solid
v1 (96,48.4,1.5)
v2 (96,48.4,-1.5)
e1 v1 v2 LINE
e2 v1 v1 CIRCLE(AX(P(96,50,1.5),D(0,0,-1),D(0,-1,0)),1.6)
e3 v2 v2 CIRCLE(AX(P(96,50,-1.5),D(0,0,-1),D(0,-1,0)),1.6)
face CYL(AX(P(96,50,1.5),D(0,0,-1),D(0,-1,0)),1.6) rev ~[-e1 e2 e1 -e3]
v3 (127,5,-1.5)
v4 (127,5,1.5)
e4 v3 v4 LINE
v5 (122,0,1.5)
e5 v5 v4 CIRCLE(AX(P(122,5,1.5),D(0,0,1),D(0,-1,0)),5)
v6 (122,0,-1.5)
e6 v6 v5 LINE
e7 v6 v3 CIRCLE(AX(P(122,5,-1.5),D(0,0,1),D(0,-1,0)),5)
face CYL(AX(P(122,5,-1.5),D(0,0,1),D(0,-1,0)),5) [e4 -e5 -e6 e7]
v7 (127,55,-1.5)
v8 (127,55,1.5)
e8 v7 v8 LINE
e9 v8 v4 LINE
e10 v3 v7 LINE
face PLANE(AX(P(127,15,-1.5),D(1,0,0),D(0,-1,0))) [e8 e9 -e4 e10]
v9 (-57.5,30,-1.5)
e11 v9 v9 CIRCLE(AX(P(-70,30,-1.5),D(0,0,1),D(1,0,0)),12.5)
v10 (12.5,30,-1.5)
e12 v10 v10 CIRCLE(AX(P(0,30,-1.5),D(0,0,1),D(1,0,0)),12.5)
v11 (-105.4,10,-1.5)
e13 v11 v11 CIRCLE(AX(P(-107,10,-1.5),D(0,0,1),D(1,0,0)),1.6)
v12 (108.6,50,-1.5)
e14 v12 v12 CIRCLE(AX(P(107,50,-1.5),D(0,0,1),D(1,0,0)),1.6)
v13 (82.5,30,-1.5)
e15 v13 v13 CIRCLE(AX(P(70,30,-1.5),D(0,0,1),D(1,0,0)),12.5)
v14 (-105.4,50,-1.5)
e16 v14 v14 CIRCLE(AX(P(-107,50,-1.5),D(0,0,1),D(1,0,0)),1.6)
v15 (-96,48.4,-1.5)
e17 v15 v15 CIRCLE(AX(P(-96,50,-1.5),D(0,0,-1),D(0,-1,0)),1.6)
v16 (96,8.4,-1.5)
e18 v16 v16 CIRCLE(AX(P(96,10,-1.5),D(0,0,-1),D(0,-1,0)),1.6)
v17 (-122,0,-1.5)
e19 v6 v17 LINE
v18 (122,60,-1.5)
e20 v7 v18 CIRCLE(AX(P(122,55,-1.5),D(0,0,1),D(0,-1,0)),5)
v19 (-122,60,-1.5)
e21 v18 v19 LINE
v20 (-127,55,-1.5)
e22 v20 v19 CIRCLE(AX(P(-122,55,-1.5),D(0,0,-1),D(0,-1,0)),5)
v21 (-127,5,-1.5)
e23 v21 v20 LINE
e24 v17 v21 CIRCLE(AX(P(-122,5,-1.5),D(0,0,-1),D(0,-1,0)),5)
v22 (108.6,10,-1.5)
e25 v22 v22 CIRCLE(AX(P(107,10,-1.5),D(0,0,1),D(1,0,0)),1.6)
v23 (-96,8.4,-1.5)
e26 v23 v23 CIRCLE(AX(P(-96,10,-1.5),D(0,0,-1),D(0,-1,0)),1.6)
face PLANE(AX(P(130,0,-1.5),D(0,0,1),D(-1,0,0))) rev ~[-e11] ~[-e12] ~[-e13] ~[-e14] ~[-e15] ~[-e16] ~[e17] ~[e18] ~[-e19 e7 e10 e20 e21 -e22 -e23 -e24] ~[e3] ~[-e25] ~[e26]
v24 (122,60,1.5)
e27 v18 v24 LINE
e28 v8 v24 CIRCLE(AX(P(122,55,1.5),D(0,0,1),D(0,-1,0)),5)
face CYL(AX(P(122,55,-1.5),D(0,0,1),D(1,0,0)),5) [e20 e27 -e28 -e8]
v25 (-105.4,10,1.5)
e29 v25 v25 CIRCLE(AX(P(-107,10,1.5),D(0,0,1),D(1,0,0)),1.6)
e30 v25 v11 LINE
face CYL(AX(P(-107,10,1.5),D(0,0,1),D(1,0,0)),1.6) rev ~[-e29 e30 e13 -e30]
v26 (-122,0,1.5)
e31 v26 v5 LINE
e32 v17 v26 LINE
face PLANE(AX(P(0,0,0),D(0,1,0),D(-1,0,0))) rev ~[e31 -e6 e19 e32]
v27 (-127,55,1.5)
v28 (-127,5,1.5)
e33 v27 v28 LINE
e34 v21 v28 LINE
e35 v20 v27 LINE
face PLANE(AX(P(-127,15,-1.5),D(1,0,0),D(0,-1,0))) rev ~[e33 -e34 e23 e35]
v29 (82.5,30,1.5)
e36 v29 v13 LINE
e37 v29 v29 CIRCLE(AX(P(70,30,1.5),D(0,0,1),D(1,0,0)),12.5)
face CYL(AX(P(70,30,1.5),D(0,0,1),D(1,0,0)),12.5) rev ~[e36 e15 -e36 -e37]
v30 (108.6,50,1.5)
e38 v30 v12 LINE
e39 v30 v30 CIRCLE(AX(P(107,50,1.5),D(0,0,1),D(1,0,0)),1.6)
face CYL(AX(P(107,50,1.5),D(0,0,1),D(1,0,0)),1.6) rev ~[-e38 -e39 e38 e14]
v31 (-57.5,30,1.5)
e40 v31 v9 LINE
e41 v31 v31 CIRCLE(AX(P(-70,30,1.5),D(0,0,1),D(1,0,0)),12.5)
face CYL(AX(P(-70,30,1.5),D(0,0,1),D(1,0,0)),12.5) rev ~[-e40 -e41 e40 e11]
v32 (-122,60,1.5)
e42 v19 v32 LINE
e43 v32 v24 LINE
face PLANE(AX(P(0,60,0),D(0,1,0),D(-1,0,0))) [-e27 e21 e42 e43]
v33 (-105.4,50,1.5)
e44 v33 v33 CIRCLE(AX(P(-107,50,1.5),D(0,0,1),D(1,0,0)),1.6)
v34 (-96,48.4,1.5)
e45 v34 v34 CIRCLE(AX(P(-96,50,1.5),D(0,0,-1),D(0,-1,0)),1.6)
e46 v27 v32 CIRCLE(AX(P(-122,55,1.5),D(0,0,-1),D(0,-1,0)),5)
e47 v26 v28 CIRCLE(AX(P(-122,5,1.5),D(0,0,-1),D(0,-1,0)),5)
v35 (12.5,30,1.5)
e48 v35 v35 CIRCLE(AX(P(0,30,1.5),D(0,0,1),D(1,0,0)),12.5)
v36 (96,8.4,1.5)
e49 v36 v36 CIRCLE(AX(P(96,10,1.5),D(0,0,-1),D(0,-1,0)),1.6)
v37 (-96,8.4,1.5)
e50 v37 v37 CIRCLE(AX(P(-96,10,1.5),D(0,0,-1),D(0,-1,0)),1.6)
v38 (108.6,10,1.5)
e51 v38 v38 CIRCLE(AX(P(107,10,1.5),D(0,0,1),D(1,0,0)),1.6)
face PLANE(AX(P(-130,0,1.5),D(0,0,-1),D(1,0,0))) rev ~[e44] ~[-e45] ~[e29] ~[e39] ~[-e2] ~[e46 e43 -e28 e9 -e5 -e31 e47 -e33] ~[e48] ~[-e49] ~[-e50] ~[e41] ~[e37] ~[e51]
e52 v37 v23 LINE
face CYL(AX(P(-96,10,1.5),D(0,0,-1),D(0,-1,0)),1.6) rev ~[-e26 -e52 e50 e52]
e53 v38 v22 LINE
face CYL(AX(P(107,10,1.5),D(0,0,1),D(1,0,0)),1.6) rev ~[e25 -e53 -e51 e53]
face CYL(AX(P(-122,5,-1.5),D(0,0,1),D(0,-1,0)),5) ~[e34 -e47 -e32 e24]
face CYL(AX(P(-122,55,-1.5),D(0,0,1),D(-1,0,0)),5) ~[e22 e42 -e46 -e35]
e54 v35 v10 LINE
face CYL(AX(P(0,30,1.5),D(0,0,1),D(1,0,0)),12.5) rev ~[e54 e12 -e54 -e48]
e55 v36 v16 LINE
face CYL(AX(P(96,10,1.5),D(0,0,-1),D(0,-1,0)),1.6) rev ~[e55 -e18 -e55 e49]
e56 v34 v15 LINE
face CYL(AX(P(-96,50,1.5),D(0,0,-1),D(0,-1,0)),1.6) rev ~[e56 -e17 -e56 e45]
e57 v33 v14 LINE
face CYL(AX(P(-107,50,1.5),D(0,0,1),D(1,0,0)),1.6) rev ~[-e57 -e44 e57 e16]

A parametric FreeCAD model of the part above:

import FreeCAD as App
import Part
import Sketcher
Q = App.Units.Quantity


def edges_at(feature, points):
    """Names of the edges that pass closest to the given points."""
    edges = feature.Shape.Edges
    near = lambda p: min(range(len(edges)), key=lambda i: edges[i].distToShape(Part.Vertex(*p))[0])
    return sorted({f"Edge{near(p) + 1}" for p in points})


def add_polygon(sketch, points):
    """Adds a closed chain of lines whose ends are joined by coincident constraints."""
    first, n = sketch.GeometryCount, len(points)
    for a, b in zip(points, points[1:] + points[:1]):
        sketch.addGeometry(Part.LineSegment(App.Vector(*a, 0), App.Vector(*b, 0)), False)
    for i in range(n):
        sketch.addConstraint(Sketcher.Constraint("Coincident", first + i, 2, first + (i + 1) % n, 1))

doc = App.newDocument("Part")
body = doc.addObject("PartDesign::Body", "Body")

sketch1 = body.newObject("Sketcher::SketchObject", "Sketch")
sketch1.AttachmentSupport = (doc.getObject("XZ_Plane"), [""])
sketch1.MapMode = "FlatFace"
add_polygon(sketch1, [(-130, -1.5), (-130, 1.5), (130, 1.5), (130, -1.5)])
sketch1.addConstraint(Sketcher.Constraint("Vertical", 0))
sketch1.addConstraint(Sketcher.Constraint("Horizontal", 1))
sketch1.addConstraint(Sketcher.Constraint("Vertical", 2))
sketch1.addConstraint(Sketcher.Constraint("Horizontal", 3))
sketch1.addConstraint(Sketcher.Constraint("Symmetric", 0, 2, 2, 2, -1, 1))
sketch1.addConstraint(Sketcher.Constraint("DistanceX", 1, 1, 1, 2, Q("260 mm")))
sketch1.addConstraint(Sketcher.Constraint("DistanceY", 0, 1, 0, 2, Q("3 mm")))
pad1 = body.newObject("PartDesign::Pad", "Pad")
pad1.Profile = sketch1
pad1.Length = 60
pad1.Reversed = True

sketch2 = body.newObject("Sketcher::SketchObject", "Sketch001")
sketch2.AttachmentSupport = (doc.getObject("XY_Plane"), [""])
sketch2.MapMode = "FlatFace"
sketch2.AttachmentOffset = App.Placement(App.Vector(0, 0, 1.5), App.Rotation())
sketch2.addGeometry(Part.Circle(App.Vector(-70, 30, 0), App.Vector(0, 0, 1), 12), False)
sketch2.addGeometry(Part.Circle(App.Vector(0, 30, 0), App.Vector(0, 0, 1), 12), False)
sketch2.addGeometry(Part.Circle(App.Vector(70, 30, 0), App.Vector(0, 0, 1), 12), False)
sketch2.addConstraint(Sketcher.Constraint("Equal", 0, 1))
sketch2.addConstraint(Sketcher.Constraint("Equal", 1, 2))
sketch2.addConstraint(Sketcher.Constraint("Symmetric", 0, 3, 2, 3, -2))
sketch2.addConstraint(Sketcher.Constraint("PointOnObject", 1, 3, -2))
sketch2.addConstraint(Sketcher.Constraint("Horizontal", 0, 3, 1, 3))
sketch2.addConstraint(Sketcher.Constraint("Diameter", 0, Q("25 mm")))
sketch2.addConstraint(Sketcher.Constraint("DistanceX", 0, 3, -1, 1, Q("70 mm")))
sketch2.addConstraint(Sketcher.Constraint("DistanceY", -1, 1, 0, 3, Q("30 mm")))
pocket1 = body.newObject("PartDesign::Pocket", "Pocket")
pocket1.Profile = sketch2
pocket1.Type = "ThroughAll"

sketch3 = body.newObject("Sketcher::SketchObject", "Sketch002")
sketch3.AttachmentSupport = (doc.getObject("XY_Plane"), [""])
sketch3.MapMode = "FlatFace"
sketch3.AttachmentOffset = App.Placement(App.Vector(0, 0, -1.5), App.Rotation())
add_polygon(sketch3, [(130, 0), (127, 0), (127, 60), (130, 60)])
add_polygon(sketch3, [(-127, 0), (-130, 0), (-130, 60), (-127, 60)])
sketch3.addConstraint(Sketcher.Constraint("Horizontal", 0))
sketch3.addConstraint(Sketcher.Constraint("Vertical", 1))
sketch3.addConstraint(Sketcher.Constraint("Horizontal", 2))
sketch3.addConstraint(Sketcher.Constraint("Vertical", 3))
sketch3.addConstraint(Sketcher.Constraint("Horizontal", 4))
sketch3.addConstraint(Sketcher.Constraint("Vertical", 5))
sketch3.addConstraint(Sketcher.Constraint("Horizontal", 6))
sketch3.addConstraint(Sketcher.Constraint("Vertical", 7))
sketch3.addConstraint(Sketcher.Constraint("Symmetric", 3, 2, 4, 2, -1, 1))
sketch3.addConstraint(Sketcher.Constraint("Symmetric", 1, 2, 6, 2, -2))
sketch3.addConstraint(Sketcher.Constraint("PointOnObject", 0, 2, -1))
sketch3.addConstraint(Sketcher.Constraint("DistanceX", 0, 2, 0, 1, Q("3 mm")))
sketch3.addConstraint(Sketcher.Constraint("DistanceY", 1, 1, 1, 2, Q("60 mm")))
sketch3.addConstraint(Sketcher.Constraint("DistanceX", -1, 1, 0, 2, Q("127 mm")))
pocket2 = body.newObject("PartDesign::Pocket", "Pocket001")
pocket2.Profile = sketch3
pocket2.Type = "ThroughAll"
pocket2.Reversed = True

sketch4 = body.newObject("Sketcher::SketchObject", "Sketch003")
sketch4.AttachmentSupport = (doc.getObject("XY_Plane"), [""])
sketch4.MapMode = "FlatFace"
sketch4.AttachmentOffset = App.Placement(App.Vector(0, 0, 1.5), App.Rotation())
sketch4.addGeometry(Part.Circle(App.Vector(-107, 50, 0), App.Vector(0, 0, 1), 1.6), False)
sketch4.addGeometry(Part.Circle(App.Vector(-107, 10, 0), App.Vector(0, 0, 1), 1.6), False)
sketch4.addGeometry(Part.Circle(App.Vector(107, 50, 0), App.Vector(0, 0, 1), 1.6), False)
sketch4.addGeometry(Part.Circle(App.Vector(107, 10, 0), App.Vector(0, 0, 1), 1.6), False)
sketch4.addConstraint(Sketcher.Constraint("Equal", 0, 1))
sketch4.addConstraint(Sketcher.Constraint("Equal", 1, 2))
sketch4.addConstraint(Sketcher.Constraint("Equal", 2, 3))
sketch4.addConstraint(Sketcher.Constraint("Symmetric", 0, 3, 2, 3, -2))
sketch4.addConstraint(Sketcher.Constraint("Symmetric", 1, 3, 3, 3, -2))
sketch4.addConstraint(Sketcher.Constraint("Vertical", 0, 3, 1, 3))
sketch4.addConstraint(Sketcher.Constraint("Diameter", 0, Q("3.2 mm")))
sketch4.addConstraint(Sketcher.Constraint("DistanceY", -1, 1, 1, 3, Q("10 mm")))
sketch4.addConstraint(Sketcher.Constraint("DistanceX", 0, 3, -1, 1, Q("107 mm")))
sketch4.addConstraint(Sketcher.Constraint("DistanceY", -1, 1, 0, 3, Q("50 mm")))
pocket3 = body.newObject("PartDesign::Pocket", "Pocket002")
pocket3.Profile = sketch4
pocket3.Type = "ThroughAll"
doc.recompute()

fillet = body.newObject("PartDesign::Fillet", "Fillet")
fillet.Base = (pocket3, edges_at(pocket3, [
    (-127, 60, 0),
    (-127, 0, 0),
    (127, 60, 0),
    (127, 0, 0),
]))
fillet.Radius = 5

sketch5 = body.newObject("Sketcher::SketchObject", "Sketch004")
sketch5.AttachmentSupport = (doc.getObject("XY_Plane"), [""])
sketch5.MapMode = "FlatFace"
sketch5.AttachmentOffset = App.Placement(App.Vector(0, 0, 1.5), App.Rotation())
sketch5.addGeometry(Part.Circle(App.Vector(-96, 50, 0), App.Vector(0, 0, 1), 1.6), False)
sketch5.addGeometry(Part.Circle(App.Vector(-96, 10, 0), App.Vector(0, 0, 1), 1.6), False)
sketch5.addGeometry(Part.Circle(App.Vector(96, 50, 0), App.Vector(0, 0, 1), 1.6), False)
sketch5.addGeometry(Part.Circle(App.Vector(96, 10, 0), App.Vector(0, 0, 1), 1.6), False)
sketch5.addConstraint(Sketcher.Constraint("Equal", 0, 1))
sketch5.addConstraint(Sketcher.Constraint("Equal", 1, 2))
sketch5.addConstraint(Sketcher.Constraint("Equal", 2, 3))
sketch5.addConstraint(Sketcher.Constraint("Symmetric", 0, 3, 2, 3, -2))
sketch5.addConstraint(Sketcher.Constraint("Symmetric", 1, 3, 3, 3, -2))
sketch5.addConstraint(Sketcher.Constraint("Vertical", 0, 3, 1, 3))
sketch5.addConstraint(Sketcher.Constraint("Diameter", 0, Q("3.2 mm")))
sketch5.addConstraint(Sketcher.Constraint("DistanceX", 0, 3, -1, 1, Q("96 mm")))
sketch5.addConstraint(Sketcher.Constraint("DistanceY", -1, 1, 0, 3, Q("50 mm")))
sketch5.addConstraint(Sketcher.Constraint("DistanceY", -1, 1, 1, 3, Q("10 mm")))
doc.recompute()
hole = body.newObject("PartDesign::Hole", "Hole")
hole.Profile = sketch5
hole.ThreadType = "None"
hole.Diameter = 3.2
hole.DepthType = "ThroughAll"

doc.recompute()
